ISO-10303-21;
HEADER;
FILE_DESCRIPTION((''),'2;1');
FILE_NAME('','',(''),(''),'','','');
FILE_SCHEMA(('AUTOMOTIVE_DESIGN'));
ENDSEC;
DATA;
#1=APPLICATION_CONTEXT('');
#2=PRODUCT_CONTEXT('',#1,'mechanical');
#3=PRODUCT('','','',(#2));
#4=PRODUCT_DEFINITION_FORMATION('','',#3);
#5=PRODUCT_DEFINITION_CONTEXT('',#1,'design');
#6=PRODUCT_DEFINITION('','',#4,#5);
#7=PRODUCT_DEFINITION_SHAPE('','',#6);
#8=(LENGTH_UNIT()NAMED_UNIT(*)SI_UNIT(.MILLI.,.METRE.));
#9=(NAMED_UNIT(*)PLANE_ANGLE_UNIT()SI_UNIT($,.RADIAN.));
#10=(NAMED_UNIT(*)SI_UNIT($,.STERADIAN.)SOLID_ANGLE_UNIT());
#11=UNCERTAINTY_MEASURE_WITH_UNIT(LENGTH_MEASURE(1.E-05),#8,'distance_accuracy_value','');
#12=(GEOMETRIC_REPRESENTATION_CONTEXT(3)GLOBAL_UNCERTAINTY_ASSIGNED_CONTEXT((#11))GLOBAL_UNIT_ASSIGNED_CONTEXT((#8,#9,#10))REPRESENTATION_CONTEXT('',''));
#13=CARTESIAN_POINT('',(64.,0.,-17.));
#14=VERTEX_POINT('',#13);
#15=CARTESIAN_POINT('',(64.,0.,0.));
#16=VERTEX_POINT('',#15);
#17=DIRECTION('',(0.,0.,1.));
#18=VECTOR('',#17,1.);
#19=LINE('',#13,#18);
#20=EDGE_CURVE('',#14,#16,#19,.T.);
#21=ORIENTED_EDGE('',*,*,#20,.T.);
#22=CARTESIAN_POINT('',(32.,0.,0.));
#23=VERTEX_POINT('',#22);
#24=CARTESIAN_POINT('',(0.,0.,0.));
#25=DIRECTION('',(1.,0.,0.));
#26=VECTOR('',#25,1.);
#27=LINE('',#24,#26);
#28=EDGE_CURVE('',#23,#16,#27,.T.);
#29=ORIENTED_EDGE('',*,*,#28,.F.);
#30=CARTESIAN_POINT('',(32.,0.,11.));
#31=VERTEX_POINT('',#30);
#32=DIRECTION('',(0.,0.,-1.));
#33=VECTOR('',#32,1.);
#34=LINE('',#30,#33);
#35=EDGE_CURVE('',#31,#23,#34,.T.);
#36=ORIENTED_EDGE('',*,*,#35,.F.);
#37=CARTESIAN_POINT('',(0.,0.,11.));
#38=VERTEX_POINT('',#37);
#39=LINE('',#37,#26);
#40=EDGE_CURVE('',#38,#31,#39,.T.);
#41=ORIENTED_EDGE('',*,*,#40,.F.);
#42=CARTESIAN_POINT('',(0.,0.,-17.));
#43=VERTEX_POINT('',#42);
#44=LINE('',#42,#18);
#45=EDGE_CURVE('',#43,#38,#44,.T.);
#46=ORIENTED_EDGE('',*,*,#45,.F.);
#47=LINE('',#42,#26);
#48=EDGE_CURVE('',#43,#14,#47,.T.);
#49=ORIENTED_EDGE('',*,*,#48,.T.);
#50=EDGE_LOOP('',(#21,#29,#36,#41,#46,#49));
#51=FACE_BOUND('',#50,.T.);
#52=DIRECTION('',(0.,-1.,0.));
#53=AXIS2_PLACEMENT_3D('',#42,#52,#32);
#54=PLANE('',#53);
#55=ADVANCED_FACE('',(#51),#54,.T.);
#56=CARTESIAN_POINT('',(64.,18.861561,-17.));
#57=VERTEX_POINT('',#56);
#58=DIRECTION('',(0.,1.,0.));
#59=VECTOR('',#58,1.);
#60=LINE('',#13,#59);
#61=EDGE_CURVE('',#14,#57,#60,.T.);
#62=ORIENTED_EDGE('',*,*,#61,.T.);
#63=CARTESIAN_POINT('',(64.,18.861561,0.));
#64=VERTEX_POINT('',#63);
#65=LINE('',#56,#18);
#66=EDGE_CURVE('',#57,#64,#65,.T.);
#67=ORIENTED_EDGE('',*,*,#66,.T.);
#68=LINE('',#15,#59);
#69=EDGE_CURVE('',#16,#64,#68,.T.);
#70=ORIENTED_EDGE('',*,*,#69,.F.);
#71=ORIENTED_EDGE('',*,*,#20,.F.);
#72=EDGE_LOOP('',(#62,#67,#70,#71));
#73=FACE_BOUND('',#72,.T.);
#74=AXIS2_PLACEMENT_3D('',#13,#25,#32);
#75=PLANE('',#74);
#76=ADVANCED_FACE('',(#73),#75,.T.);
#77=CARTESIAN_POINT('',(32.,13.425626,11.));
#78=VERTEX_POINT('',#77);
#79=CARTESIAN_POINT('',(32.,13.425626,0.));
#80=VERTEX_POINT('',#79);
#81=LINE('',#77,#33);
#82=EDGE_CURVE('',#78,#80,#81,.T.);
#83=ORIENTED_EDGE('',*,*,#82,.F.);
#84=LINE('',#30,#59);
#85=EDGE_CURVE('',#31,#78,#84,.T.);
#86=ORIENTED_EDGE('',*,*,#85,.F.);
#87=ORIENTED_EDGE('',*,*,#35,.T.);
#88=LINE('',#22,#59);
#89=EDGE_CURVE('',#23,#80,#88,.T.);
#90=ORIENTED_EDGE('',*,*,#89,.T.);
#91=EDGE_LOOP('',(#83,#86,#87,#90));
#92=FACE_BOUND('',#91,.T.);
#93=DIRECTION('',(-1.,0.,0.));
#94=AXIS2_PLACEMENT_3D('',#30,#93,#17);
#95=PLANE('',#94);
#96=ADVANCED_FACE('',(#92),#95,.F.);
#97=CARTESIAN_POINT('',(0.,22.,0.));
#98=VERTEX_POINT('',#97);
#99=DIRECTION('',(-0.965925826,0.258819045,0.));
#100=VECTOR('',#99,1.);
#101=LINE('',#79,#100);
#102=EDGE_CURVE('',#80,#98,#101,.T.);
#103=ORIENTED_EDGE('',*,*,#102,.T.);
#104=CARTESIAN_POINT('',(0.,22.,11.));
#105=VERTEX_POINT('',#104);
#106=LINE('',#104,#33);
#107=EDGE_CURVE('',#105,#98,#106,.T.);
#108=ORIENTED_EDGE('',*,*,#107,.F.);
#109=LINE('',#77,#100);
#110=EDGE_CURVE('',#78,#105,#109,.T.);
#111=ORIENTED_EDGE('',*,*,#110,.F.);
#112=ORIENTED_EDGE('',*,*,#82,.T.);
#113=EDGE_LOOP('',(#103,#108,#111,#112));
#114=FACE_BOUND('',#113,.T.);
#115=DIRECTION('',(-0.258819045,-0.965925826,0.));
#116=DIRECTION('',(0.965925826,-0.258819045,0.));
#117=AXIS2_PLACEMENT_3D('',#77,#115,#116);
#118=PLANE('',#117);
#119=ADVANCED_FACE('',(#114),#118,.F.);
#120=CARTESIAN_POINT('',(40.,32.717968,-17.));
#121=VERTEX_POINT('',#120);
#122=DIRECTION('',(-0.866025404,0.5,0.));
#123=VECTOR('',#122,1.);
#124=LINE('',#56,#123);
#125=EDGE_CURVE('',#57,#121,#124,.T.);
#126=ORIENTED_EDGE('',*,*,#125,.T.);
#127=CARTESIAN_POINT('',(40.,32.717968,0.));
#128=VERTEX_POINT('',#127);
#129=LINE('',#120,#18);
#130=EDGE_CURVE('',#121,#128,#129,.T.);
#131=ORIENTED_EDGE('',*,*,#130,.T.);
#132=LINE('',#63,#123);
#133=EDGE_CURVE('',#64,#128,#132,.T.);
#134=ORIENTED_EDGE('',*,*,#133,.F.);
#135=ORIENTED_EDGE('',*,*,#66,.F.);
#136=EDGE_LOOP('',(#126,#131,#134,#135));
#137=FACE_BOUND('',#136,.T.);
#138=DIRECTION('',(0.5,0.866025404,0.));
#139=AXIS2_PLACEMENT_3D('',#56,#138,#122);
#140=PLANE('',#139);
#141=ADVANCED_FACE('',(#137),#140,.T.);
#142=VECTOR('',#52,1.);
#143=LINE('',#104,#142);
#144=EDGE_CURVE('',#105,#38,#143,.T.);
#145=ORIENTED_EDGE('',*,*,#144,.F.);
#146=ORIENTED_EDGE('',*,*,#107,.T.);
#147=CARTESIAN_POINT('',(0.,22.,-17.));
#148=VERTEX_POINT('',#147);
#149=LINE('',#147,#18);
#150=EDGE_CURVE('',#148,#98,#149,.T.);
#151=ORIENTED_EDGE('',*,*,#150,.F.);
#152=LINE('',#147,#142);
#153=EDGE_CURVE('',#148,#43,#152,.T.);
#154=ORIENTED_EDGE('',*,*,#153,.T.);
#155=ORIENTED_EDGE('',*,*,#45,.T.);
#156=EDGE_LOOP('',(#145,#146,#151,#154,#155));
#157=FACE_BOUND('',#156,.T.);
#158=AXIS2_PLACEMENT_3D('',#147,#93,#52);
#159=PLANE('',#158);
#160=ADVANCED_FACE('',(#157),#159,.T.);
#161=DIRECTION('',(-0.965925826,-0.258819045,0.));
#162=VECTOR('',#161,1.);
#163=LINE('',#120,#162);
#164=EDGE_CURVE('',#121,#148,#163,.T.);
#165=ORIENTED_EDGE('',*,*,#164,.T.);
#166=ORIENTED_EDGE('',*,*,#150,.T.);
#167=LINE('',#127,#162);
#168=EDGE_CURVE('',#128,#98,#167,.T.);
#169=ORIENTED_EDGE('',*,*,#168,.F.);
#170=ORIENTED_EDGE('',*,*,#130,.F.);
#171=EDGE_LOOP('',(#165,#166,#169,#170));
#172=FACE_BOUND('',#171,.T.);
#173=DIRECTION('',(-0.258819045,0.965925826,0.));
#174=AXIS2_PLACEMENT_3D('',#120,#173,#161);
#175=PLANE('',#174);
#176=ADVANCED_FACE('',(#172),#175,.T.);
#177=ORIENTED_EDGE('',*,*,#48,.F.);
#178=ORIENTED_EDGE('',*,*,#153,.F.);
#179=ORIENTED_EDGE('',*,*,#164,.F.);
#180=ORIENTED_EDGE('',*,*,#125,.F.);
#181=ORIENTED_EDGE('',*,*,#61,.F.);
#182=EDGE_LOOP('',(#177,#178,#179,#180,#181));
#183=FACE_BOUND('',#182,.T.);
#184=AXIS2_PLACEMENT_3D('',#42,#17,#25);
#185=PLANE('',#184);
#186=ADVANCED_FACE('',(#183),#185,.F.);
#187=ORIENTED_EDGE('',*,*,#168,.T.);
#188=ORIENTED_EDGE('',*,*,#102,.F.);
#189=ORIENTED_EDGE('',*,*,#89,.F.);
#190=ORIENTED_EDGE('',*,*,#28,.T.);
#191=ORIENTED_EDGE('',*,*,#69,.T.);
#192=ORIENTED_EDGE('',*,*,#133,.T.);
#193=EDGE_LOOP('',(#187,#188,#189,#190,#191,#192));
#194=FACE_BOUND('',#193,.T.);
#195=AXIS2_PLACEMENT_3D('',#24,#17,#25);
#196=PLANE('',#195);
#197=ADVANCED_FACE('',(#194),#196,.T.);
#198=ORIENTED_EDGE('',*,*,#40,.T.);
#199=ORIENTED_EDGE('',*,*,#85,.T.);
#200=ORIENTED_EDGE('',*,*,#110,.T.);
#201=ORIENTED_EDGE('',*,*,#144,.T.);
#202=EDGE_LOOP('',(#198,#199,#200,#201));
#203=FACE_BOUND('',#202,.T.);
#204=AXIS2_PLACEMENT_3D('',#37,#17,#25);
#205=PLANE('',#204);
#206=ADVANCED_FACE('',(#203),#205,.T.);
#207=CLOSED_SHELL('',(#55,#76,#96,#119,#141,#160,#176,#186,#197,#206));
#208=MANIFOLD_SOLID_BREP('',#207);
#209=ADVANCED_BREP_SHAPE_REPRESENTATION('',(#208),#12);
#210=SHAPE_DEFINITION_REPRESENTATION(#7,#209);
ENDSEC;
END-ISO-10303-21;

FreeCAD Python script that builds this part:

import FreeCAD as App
import Part
import Sketcher
Q = App.Units.Quantity

doc = App.newDocument("Part")
body = doc.addObject("PartDesign::Body", "Body")

# Sketch on XY plane
sketch1 = body.newObject("Sketcher::SketchObject", "Sketch")
sketch1.AttachmentSupport = (doc.getObject("XY_Plane"), [""])
sketch1.MapMode = "FlatFace"
sketch1.addGeometry([
    Part.LineSegment(App.Vector(0, 0, 0), App.Vector(64, 0, 0)),  # 0
    Part.LineSegment(App.Vector(64, 0, 0), App.Vector(64, 19, 0)),  # 1
    Part.LineSegment(App.Vector(64, 19, 0), App.Vector(40, 33, 0)),  # 2
    Part.LineSegment(App.Vector(40, 33, 0), App.Vector(0, 22, 0)),  # 3
    Part.LineSegment(App.Vector(0, 22, 0), App.Vector(0, 0, 0)),  # 4
], False)
sketch1.addConstraint([
    Sketcher.Constraint("Coincident", 0, 2, 1, 1),
    Sketcher.Constraint("Coincident", 1, 2, 2, 1),
    Sketcher.Constraint("Coincident", 2, 2, 3, 1),
    Sketcher.Constraint("Coincident", 3, 2, 4, 1),
    Sketcher.Constraint("Coincident", 4, 2, 0, 1),
    Sketcher.Constraint("Horizontal", 0),
    Sketcher.Constraint("Vertical", 1),
    Sketcher.Constraint("Vertical", 4),
    Sketcher.Constraint("Coincident", 4, 2, -1, 1),
    Sketcher.Constraint("DistanceX", 0, 1, 0, 2, Q("64 mm")),
    Sketcher.Constraint("DistanceY", 4, 2, 4, 1, Q("22 mm")),
    Sketcher.Constraint("Angle", 2, Q("150 deg")),
    Sketcher.Constraint("Angle", 3, Q("-165 deg")),
    Sketcher.Constraint("DistanceX", -1, 1, 2, 2, Q("40 mm")),
])
pad1 = body.newObject("PartDesign::Pad", "Pad")
pad1.Profile = sketch1
pad1.Length = 17
pad1.Reversed = True

# Sketch on XY plane
sketch2 = body.newObject("Sketcher::SketchObject", "Sketch001")
sketch2.AttachmentSupport = (doc.getObject("XY_Plane"), [""])
sketch2.MapMode = "FlatFace"
sketch2.addGeometry([
    Part.LineSegment(App.Vector(0, 0, 0), App.Vector(32, 0, 0)),
    Part.LineSegment(App.Vector(32, 0, 0), App.Vector(32, 13, 0)),
    Part.LineSegment(App.Vector(32, 13, 0), App.Vector(0, 22, 0)),
    Part.LineSegment(App.Vector(0, 22, 0), App.Vector(0, 0, 0)),
], False)
sketch2.addConstraint([
    Sketcher.Constraint("Coincident", 0, 2, 1, 1),
    Sketcher.Constraint("Coincident", 1, 2, 2, 1),
    Sketcher.Constraint("Coincident", 2, 2, 3, 1),
    Sketcher.Constraint("Coincident", 3, 2, 0, 1),
    Sketcher.Constraint("Horizontal", 0),
    Sketcher.Constraint("Vertical", 1),
    Sketcher.Constraint("Vertical", 3),
    Sketcher.Constraint("Coincident", 3, 2, -1, 1),
    Sketcher.Constraint("DistanceX", 0, 1, 0, 2, Q("32 mm")),
    Sketcher.Constraint("DistanceY", 3, 2, 3, 1, Q("22 mm")),
    Sketcher.Constraint("Angle", 2, Q("165 deg")),
])
pad2 = body.newObject("PartDesign::Pad", "Pad001")
pad2.Profile = sketch2
pad2.Length = 11

doc.recompute()
